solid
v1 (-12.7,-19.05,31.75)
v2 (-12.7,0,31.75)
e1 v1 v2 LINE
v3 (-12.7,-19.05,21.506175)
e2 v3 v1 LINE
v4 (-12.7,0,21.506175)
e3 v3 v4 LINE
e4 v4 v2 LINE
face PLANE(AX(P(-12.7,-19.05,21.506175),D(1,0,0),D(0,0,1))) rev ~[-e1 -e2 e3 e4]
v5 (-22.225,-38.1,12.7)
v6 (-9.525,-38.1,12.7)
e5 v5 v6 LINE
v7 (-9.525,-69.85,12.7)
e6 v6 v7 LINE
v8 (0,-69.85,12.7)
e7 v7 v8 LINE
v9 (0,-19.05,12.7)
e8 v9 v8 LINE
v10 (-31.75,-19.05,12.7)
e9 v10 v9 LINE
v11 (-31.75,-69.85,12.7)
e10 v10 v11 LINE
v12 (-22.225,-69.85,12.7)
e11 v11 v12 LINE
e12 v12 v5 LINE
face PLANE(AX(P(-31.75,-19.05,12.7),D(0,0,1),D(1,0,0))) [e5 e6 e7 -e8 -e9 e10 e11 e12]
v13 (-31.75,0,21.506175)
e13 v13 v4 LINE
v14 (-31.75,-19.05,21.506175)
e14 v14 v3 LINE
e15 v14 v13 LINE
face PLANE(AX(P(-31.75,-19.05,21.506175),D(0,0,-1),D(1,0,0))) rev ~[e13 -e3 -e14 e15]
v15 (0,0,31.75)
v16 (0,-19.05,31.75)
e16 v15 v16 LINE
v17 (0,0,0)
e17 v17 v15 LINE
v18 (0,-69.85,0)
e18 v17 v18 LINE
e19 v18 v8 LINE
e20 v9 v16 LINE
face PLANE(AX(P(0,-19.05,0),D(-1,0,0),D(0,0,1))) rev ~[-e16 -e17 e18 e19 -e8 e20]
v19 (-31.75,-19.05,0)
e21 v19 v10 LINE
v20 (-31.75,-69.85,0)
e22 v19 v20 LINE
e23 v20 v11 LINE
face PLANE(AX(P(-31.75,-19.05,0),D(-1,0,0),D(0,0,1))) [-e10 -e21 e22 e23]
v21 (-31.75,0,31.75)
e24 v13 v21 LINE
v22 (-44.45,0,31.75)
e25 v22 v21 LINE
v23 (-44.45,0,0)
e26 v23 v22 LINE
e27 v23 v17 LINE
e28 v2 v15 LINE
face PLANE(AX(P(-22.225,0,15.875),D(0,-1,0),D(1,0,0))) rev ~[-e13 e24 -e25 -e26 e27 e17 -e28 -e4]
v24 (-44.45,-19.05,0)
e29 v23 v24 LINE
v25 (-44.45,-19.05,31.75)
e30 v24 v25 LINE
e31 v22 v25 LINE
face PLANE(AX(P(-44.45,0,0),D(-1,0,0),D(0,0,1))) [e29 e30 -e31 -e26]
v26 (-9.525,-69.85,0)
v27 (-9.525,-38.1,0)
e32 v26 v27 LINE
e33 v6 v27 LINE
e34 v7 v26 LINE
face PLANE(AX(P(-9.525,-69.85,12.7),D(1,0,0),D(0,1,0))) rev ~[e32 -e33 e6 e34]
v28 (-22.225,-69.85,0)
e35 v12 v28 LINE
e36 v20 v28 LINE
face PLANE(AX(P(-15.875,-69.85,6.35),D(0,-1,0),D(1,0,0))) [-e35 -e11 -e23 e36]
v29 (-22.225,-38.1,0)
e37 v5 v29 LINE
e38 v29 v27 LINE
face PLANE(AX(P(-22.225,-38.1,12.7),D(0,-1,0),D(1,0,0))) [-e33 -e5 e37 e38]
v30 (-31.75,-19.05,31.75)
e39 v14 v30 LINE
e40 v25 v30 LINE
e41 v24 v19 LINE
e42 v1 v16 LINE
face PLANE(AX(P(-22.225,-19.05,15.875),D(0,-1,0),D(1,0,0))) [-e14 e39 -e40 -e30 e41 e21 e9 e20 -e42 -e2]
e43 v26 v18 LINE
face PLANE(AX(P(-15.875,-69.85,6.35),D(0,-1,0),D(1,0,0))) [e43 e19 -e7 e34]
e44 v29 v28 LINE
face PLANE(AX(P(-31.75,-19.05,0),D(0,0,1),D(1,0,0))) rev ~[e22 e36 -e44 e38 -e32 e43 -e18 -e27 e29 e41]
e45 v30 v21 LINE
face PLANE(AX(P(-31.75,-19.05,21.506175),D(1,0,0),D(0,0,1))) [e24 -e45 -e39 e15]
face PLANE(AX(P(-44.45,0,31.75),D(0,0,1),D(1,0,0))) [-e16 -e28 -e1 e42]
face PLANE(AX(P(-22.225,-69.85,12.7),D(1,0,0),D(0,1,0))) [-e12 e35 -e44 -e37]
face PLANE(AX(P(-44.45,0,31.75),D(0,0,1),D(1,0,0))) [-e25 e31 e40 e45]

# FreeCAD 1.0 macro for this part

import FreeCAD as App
import Part
import Sketcher
from FreeCAD import Vector
Q = App.Units.Quantity


def add_polygon(sketch, points):
    """Adds a closed chain of lines whose ends are joined by coincident constraints."""
    first, n = sketch.GeometryCount, len(points)
    for a, b in zip(points, points[1:] + points[:1]):
        sketch.addGeometry(Part.LineSegment(App.Vector(*a, 0), App.Vector(*b, 0)), False)
    for i in range(n):
        sketch.addConstraint(Sketcher.Constraint("Coincident", first + i, 2, first + (i + 1) % n, 1))

doc = App.newDocument("Part")
body = doc.addObject("PartDesign::Body", "Body")

# Sketch on XZ plane
sketch1 = body.newObject("Sketcher::SketchObject", "Sketch")
sketch1.AttachmentSupport = (doc.getObject("XZ_Plane"), [""])
sketch1.MapMode = "FlatFace"
add_polygon(sketch1, [(-44, 32), (-44, 0), (0, 0), (0, 32)])  # lines 0-3
sketch1.addConstraint([
    Sketcher.Constraint("Vertical", 0),
    Sketcher.Constraint("Horizontal", 1),
    Sketcher.Constraint("Vertical", 2),
    Sketcher.Constraint("Horizontal", 3),
    Sketcher.Constraint("Coincident", 1, 2, -1, 1),
    Sketcher.Constraint("DistanceX", 1, 1, 1, 2, Q("1.75 in")),
    Sketcher.Constraint("DistanceY", 0, 2, 0, 1, Q("1.25 in")),
])
pad1 = body.newObject("PartDesign::Pad", "Pad")
pad1.Profile = sketch1
pad1.Length = Q("0.75 in")

# Sketch on XZ plane
sketch2 = body.newObject("Sketcher::SketchObject", "Sketch001")
sketch2.AttachmentSupport = (doc.getObject("XZ_Plane"), [""])
sketch2.MapMode = "FlatFace"
sketch2.AttachmentOffset = App.Placement(Vector(0, 0, 0.75 * 25.4), App.Rotation())
add_polygon(sketch2, [(-32, 32), (-32, 22), (-13, 22), (-13, 32)])  # lines 0-3
sketch2.addConstraint([
    Sketcher.Constraint("Vertical", 0),
    Sketcher.Constraint("Horizontal", 1),
    Sketcher.Constraint("Vertical", 2),
    Sketcher.Constraint("Horizontal", 3),
    Sketcher.Constraint("DistanceX", 1, 1, 1, 2, Q("0.75 in")),
    Sketcher.Constraint("DistanceX", 1, 2, -1, 1, Q("0.5 in")),
    Sketcher.Constraint("DistanceY", -1, 1, 2, 2, Q("1.25 in")),
    Sketcher.Constraint("DistanceY", 0, 2, 0, 1, Q("0.4033002 in")),
])
pocket1 = body.newObject("PartDesign::Pocket", "Pocket")
pocket1.Profile = sketch2
pocket1.Length = Q("1 in")

# Sketch on XZ plane
sketch3 = body.newObject("Sketcher::SketchObject", "Sketch002")
sketch3.AttachmentSupport = (doc.getObject("XZ_Plane"), [""])
sketch3.MapMode = "FlatFace"
sketch3.AttachmentOffset = App.Placement(Vector(0, 0, 0.75 * 25.4), App.Rotation())
add_polygon(sketch3, [(-32, 13), (-32, 0), (0, 0), (0, 13)])  # lines 0-3
sketch3.addConstraint([
    Sketcher.Constraint("Vertical", 0),
    Sketcher.Constraint("Horizontal", 1),
    Sketcher.Constraint("Vertical", 2),
    Sketcher.Constraint("Horizontal", 3),
    Sketcher.Constraint("Coincident", 1, 2, -1, 1),
    Sketcher.Constraint("DistanceY", 0, 2, 0, 1, Q("0.5 in")),
    Sketcher.Constraint("DistanceX", 1, 1, 1, 2, Q("1.25 in")),
])
pad2 = body.newObject("PartDesign::Pad", "Pad001")
pad2.Profile = sketch3
pad2.Length = Q("2 in")

# Sketch on XY plane
sketch4 = body.newObject("Sketcher::SketchObject", "Sketch003")
sketch4.AttachmentSupport = (doc.getObject("XY_Plane"), [""])
sketch4.MapMode = "FlatFace"
sketch4.AttachmentOffset = App.Placement(Vector(0, 0, 0.5 * 25.4), App.Rotation())
add_polygon(sketch4, [(-22, -38), (-22, -70), (-10, -70), (-10, -38)])  # lines 0-3
sketch4.addConstraint([
    Sketcher.Constraint("Vertical", 0),
    Sketcher.Constraint("Horizontal", 1),
    Sketcher.Constraint("Vertical", 2),
    Sketcher.Constraint("Horizontal", 3),
    Sketcher.Constraint("DistanceX", 1, 1, 1, 2, Q("0.5 in")),
    Sketcher.Constraint("DistanceY", 0, 2, 0, 1, Q("1.25 in")),
    Sketcher.Constraint("DistanceY", 2, 2, -1, 1, Q("1.5 in")),
    Sketcher.Constraint("DistanceX", 0, 2, -1, 1, Q("0.875 in")),
])
pocket2 = body.newObject("PartDesign::Pocket", "Pocket001")
pocket2.Profile = sketch4
pocket2.Length = Q("1 in")

# Sketch on XZ plane
sketch5 = body.newObject("Sketcher::SketchObject", "Sketch004")
sketch5.AttachmentSupport = (doc.getObject("XZ_Plane"), [""])
sketch5.MapMode = "FlatFace"
sketch5.AttachmentOffset = App.Placement(Vector(0, 0, 2.75 * 25.4), App.Rotation())
add_polygon(sketch5, [(-22, 13), (-22, 0), (-10, 0), (-10, 13)])  # lines 0-3
sketch5.addConstraint([
    Sketcher.Constraint("Vertical", 0),
    Sketcher.Constraint("Horizontal", 1),
    Sketcher.Constraint("Vertical", 2),
    Sketcher.Constraint("Horizontal", 3),
    Sketcher.Constraint("PointOnObject", 0, 2, -1),
    Sketcher.Constraint("Equal", 3, 0),
    Sketcher.Constraint("DistanceX", 1, 1, 1, 2, Q("0.5 in")),
    Sketcher.Constraint("DistanceX", 0, 2, -1, 1, Q("0.875 in")),
])
pocket3 = body.newObject("PartDesign::Pocket", "Pocket002")
pocket3.Profile = sketch5
pocket3.Length = Q("1 in")

doc.recompute()
